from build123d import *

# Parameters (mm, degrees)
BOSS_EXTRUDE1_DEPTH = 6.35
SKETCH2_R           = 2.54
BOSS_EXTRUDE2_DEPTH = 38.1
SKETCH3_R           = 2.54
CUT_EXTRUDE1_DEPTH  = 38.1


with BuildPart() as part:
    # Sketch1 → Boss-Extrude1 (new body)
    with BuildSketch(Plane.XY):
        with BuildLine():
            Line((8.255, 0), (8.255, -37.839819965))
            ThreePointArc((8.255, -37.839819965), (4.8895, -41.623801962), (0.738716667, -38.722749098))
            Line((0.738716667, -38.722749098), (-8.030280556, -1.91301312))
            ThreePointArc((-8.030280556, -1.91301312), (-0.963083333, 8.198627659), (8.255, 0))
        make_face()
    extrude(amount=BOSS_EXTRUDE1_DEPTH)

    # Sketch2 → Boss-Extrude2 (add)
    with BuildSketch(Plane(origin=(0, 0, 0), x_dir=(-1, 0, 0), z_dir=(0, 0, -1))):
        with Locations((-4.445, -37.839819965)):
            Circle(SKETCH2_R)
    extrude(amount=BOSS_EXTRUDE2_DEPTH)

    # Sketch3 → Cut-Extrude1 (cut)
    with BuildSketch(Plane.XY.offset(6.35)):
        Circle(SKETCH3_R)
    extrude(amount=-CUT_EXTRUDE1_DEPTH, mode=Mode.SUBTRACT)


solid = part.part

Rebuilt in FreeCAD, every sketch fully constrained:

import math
import FreeCAD as App
import Part
import Sketcher
from FreeCAD import Vector
Q = App.Units.Quantity

doc = App.newDocument("Part")
body = doc.addObject("PartDesign::Body", "Body")

sketch1 = doc.addObject("Sketcher::SketchObject", "Sketch")
body.addObject(sketch1)
sketch1.AttachmentSupport = (doc.XY_Plane, [""])
sketch1.MapMode = "FlatFace"
sketch1.addGeometry([
    Part.LineSegment(Vector(8.3, -37.8, 0), Vector(8.3, 0, 0)),
    Part.ArcOfCircle(Part.Circle(Vector(0, 0, 0), Vector(0, 0, 1), 8.3), math.radians(0), math.radians(193)),
    Part.LineSegment(Vector(-8, -1.9, 0), Vector(0.7, -38.7, 0)),
    Part.ArcOfCircle(Part.Circle(Vector(4.4, -37.8, 0), Vector(0, 0, 1), 3.8), math.radians(-167), math.radians(0)),
], False)
sketch1.addConstraint([
    Sketcher.Constraint("Tangent", 0, 2, 1, 1),
    Sketcher.Constraint("Tangent", 1, 2, 2, 1),
    Sketcher.Constraint("Tangent", 2, 2, 3, 1),
    Sketcher.Constraint("Tangent", 3, 2, 0, 1),
    Sketcher.Constraint("Vertical", 0),
    Sketcher.Constraint("Coincident", 1, 3, -1, 1),
    Sketcher.Constraint("Radius", 3, Q("0.15 in")),
    Sketcher.Constraint("Radius", 1, Q("0.325 in")),
    Sketcher.Constraint("DistanceY", 0, 1, 0, 2, 37.83982),
])
pad1 = doc.addObject("PartDesign::Pad", "Pad")
body.addObject(pad1)
pad1.Profile = sketch1
pad1.Length = Q("0.25 in")

sketch2 = doc.addObject("Sketcher::SketchObject", "Sketch001")
body.addObject(sketch2)
sketch2.AttachmentSupport = (doc.XY_Plane, [""])
sketch2.MapMode = "FlatFace"
sketch2.addGeometry(Part.Circle(Vector(4.4, -37.8, 0), Vector(0, 0, 1), 2.5), False)
sketch2.addConstraint([
    Sketcher.Constraint("Diameter", 0, Q("0.2 in")),
    Sketcher.Constraint("DistanceX", -1, 1, 0, 3, Q("0.175 in")),
    Sketcher.Constraint("DistanceY", 0, 3, -1, 1, 37.83982),
])
pad2 = doc.addObject("PartDesign::Pad", "Pad001")
body.addObject(pad2)
pad2.Profile = sketch2
pad2.Length = Q("1.5 in")
pad2.Reversed = True

sketch3 = doc.addObject("Sketcher::SketchObject", "Sketch002")
body.addObject(sketch3)
sketch3.AttachmentSupport = (doc.XY_Plane, [""])
sketch3.MapMode = "FlatFace"
sketch3.AttachmentOffset = App.Placement(Vector(0, 0, 0.25 * 25.4), App.Rotation())
sketch3.addGeometry(Part.Circle(Vector(0, 0, 0), Vector(0, 0, 1), 2.5), False)
sketch3.addConstraint([
    Sketcher.Constraint("Coincident", 0, 3, -1, 1),
    Sketcher.Constraint("Diameter", 0, Q("0.2 in")),
])
pocket1 = doc.addObject("PartDesign::Pocket", "Pocket")
body.addObject(pocket1)
pocket1.Profile = sketch3
pocket1.Length = Q("1.5 in")

doc.recompute()
